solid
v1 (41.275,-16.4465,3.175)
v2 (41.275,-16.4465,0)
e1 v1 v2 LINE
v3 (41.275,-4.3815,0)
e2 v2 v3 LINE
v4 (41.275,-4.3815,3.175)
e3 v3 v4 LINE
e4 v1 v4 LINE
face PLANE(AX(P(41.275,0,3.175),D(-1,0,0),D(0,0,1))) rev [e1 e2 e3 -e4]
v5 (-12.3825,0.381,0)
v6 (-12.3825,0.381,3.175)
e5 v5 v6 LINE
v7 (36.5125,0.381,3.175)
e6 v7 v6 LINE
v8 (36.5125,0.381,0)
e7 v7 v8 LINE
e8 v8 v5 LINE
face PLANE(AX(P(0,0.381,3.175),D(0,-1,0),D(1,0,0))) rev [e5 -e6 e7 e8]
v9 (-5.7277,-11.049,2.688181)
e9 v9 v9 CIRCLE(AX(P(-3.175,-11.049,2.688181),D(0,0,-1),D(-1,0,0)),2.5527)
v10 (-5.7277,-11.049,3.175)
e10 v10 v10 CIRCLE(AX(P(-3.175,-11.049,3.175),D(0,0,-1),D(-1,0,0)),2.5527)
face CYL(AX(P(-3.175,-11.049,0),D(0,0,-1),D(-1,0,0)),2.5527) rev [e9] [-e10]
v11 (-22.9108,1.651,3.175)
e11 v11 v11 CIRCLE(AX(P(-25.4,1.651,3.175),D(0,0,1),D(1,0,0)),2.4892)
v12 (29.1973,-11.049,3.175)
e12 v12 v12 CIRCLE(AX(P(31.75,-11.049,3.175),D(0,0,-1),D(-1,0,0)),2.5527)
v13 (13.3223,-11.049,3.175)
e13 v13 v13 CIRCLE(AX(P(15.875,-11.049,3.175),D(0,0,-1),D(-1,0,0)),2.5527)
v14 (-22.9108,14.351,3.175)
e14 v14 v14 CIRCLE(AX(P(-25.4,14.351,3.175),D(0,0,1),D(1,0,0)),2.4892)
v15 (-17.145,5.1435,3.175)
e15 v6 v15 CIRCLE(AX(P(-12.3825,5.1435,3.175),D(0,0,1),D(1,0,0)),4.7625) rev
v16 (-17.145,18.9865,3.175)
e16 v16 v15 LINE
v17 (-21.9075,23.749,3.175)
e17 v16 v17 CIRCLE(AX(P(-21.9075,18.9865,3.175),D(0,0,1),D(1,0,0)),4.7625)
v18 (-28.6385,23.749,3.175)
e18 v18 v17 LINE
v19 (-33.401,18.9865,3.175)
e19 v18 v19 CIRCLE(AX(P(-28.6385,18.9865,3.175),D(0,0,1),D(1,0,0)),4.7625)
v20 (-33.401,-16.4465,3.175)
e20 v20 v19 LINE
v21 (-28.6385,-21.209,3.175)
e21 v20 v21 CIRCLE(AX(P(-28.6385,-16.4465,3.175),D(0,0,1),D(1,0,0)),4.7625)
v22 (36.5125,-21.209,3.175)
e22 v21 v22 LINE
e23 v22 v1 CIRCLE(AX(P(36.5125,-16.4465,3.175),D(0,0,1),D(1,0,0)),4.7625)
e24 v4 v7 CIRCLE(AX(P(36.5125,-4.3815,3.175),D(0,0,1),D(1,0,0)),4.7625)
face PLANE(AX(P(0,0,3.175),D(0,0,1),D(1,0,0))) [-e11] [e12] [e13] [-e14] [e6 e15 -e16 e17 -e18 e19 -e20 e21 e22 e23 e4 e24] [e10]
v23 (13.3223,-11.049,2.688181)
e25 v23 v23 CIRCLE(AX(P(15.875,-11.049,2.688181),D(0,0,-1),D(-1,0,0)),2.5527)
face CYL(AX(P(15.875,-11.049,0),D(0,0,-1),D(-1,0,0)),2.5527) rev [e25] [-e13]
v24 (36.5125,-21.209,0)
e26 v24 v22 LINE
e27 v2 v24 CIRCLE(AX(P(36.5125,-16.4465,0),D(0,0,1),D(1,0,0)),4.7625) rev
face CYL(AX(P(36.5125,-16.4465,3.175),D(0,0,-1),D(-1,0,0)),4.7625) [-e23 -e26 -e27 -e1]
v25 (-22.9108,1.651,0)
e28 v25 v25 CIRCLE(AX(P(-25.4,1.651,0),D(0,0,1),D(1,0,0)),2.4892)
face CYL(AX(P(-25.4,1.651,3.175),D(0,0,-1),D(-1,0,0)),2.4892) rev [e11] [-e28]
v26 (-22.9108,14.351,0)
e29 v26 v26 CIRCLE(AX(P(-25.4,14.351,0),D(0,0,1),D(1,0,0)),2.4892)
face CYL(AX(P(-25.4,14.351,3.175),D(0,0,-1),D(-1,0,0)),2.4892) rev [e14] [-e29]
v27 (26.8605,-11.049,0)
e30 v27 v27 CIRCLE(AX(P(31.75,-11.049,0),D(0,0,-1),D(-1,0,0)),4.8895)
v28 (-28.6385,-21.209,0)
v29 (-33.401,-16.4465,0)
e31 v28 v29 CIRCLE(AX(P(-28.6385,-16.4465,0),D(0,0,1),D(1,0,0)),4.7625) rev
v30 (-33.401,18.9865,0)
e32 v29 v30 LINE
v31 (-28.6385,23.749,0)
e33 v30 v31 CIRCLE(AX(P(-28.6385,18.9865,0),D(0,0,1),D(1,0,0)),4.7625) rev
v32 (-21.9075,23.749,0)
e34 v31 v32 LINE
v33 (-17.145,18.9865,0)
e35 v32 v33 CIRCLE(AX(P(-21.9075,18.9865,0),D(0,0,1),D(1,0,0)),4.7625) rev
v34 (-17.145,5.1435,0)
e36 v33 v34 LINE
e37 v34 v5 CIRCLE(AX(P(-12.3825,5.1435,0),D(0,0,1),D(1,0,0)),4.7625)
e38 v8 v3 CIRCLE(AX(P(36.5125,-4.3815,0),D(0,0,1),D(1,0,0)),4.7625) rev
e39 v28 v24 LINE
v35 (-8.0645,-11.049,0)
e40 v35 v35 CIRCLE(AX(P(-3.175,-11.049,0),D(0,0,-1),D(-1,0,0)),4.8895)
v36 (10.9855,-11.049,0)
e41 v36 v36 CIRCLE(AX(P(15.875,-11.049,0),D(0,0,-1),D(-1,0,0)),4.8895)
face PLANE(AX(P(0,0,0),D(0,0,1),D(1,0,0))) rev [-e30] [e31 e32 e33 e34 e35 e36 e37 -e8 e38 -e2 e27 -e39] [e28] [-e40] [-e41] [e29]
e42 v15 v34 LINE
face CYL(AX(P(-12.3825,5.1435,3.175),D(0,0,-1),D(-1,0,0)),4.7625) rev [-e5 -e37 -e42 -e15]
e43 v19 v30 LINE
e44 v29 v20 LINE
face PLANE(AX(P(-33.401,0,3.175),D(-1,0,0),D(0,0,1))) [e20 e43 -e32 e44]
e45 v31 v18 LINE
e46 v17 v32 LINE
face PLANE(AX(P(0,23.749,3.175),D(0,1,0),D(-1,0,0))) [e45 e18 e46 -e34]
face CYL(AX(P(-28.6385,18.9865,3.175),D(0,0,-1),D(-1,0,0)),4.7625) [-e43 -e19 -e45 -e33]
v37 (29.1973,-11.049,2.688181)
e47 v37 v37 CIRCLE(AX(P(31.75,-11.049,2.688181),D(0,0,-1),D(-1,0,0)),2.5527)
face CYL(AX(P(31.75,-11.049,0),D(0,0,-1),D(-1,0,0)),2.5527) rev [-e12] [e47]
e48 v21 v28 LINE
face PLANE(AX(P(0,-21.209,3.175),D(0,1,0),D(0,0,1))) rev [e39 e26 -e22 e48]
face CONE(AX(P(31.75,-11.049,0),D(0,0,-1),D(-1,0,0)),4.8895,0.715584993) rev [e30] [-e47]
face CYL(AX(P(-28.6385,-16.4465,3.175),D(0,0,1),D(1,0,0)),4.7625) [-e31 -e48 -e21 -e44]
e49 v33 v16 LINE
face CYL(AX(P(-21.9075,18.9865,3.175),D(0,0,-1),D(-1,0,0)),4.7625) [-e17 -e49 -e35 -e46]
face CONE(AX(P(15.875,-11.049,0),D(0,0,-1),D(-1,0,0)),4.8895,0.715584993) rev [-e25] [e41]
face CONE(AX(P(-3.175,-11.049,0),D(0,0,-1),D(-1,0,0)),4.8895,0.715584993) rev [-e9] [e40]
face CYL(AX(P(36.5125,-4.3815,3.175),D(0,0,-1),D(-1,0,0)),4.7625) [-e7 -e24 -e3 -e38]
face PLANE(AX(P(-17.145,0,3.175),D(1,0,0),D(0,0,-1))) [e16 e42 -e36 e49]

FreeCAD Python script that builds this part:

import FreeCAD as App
import Part
import Sketcher
from FreeCAD import Vector
Q = App.Units.Quantity


def edges_at(feature, points):
    """Names of the edges that pass closest to the given points."""
    edges = feature.Shape.Edges
    near = lambda p: min(range(len(edges)), key=lambda i: edges[i].distToShape(Part.Vertex(*p))[0])
    return sorted({f"Edge{near(p) + 1}" for p in points})


def add_polygon(sketch, points):
    """Adds a closed chain of lines whose ends are joined by coincident constraints."""
    first, n = sketch.GeometryCount, len(points)
    for a, b in zip(points, points[1:] + points[:1]):
        sketch.addGeometry(Part.LineSegment(App.Vector(*a, 0), App.Vector(*b, 0)), False)
    for i in range(n):
        sketch.addConstraint(Sketcher.Constraint("Coincident", first + i, 2, first + (i + 1) % n, 1))

doc = App.newDocument("Part")
params = doc.addObject("Spreadsheet::Sheet", "Params")
for row, (alias, value) in enumerate([
    ("sketch1_diameter", "0.196 in"),
    ("sketch1_width", "2.3 in"),
    ("sketch1_width2", "2.94 in"),
    ("sketch1_height", "1.77 in"),
    ("sketch1_height2", "0.85 in"),
    ("pad1_length", "0.125 in"),
    ("fillet_radius", "0.1875 in"),
    ("sketch2_height", "0.125 in"),
    ("groove_angle", "360 deg"),
    ("linearpattern_pitch", "0.625 in"),
    ("linearpattern2_pitch", "1.375 in"),
], start=1):
    params.set(f"A{row}", alias)
    params.set(f"B{row}", "=" + value)
    params.setAlias(f"B{row}", alias)

body = doc.addObject("PartDesign::Body", "Body")

# Sketch on XY plane
sketch1 = doc.addObject("Sketcher::SketchObject", "Sketch")
body.addObject(sketch1)
sketch1.AttachmentSupport = (doc.XY_Plane, [""])
sketch1.MapMode = "FlatFace"
add_polygon(sketch1, [(-33.4, 23.7), (-33.4, -21.2), (41.3, -21.2), (41.3, 0.4), (-17.1, 0.4), (-17.1, 23.7)])  # lines 0-5
sketch1.addGeometry(Part.Circle(Vector(-25.4, 1.7, 0), Vector(0, 0, 1), 2.5), False)  # 6
sketch1.addGeometry(Part.Circle(Vector(-25.4, 14.4, 0), Vector(0, 0, 1), 2.5), False)  # 7
sketch1.addConstraint([
    Sketcher.Constraint("Vertical", 0),
    Sketcher.Constraint("Horizontal", 1),
    Sketcher.Constraint("Vertical", 2),
    Sketcher.Constraint("Horizontal", 3),
    Sketcher.Constraint("Vertical", 4),
    Sketcher.Constraint("Horizontal", 5),
    Sketcher.Constraint("Equal", 6, 7),
    Sketcher.Constraint("Vertical", 6, 3, 7, 3),
    Sketcher.Constraint("Diameter", 6, Q("0.196 in")),
    Sketcher.Constraint("DistanceX", 3, 2, 3, 1, Q("2.3 in")),
    Sketcher.Constraint("DistanceX", 6, 3, -1, 1, Q("1 in")),
    Sketcher.Constraint("DistanceX", 1, 1, 1, 2, Q("2.94 in")),
    Sketcher.Constraint("DistanceY", 0, 2, 0, 1, Q("1.77 in")),
    Sketcher.Constraint("DistanceY", 2, 1, 2, 2, Q("0.85 in")),
    Sketcher.Constraint("DistanceY", 6, 3, 7, 3, Q("0.5 in")),
    Sketcher.Constraint("DistanceY", 0, 2, 6, 3, Q("0.9 in")),
    Sketcher.Constraint("DistanceY", -1, 1, 6, 3, Q("0.065 in")),
    Sketcher.Constraint("DistanceX", 0, 2, -1, 1, Q("1.315 in")),
])
sketch1.setExpression("Constraints[14]", "Params.sketch1_diameter")
sketch1.setExpression("Constraints[15]", "Params.sketch1_width")
sketch1.setExpression("Constraints[17]", "Params.sketch1_width2")
sketch1.setExpression("Constraints[18]", "Params.sketch1_height")
sketch1.setExpression("Constraints[19]", "Params.sketch1_height2")
pad1 = doc.addObject("PartDesign::Pad", "Pad")
body.addObject(pad1)
pad1.Profile = sketch1
pad1.setExpression("Length", "Params.pad1_length")
doc.recompute()

fillet = doc.addObject("PartDesign::Fillet", "Fillet")
body.addObject(fillet)
fillet.Base = (pad1, edges_at(pad1, [
    (-33.401, 23.749, 1.587),
    (-17.145, 23.749, 1.587),
    (-17.145, 0.381, 1.587),
    (41.275, 0.381, 1.587),
    (41.275, -21.209, 1.587),
    (-33.401, -21.209, 1.587),
]))
fillet.setExpression("Radius", "Params.fillet_radius")

# Sketch on YZ plane
sketch2 = doc.addObject("Sketcher::SketchObject", "Sketch001")
body.addObject(sketch2)
sketch2.AttachmentSupport = (doc.YZ_Plane, [""])
sketch2.MapMode = "FlatFace"
sketch2.AttachmentOffset = App.Placement(Vector(0, 0, 1.25 * 25.4), App.Rotation())
add_polygon(sketch2, [(-11.05, 3.17), (-11.05, 0), (-6.16, 0), (-8.5, 2.69), (-8.5, 3.17)])  # lines 0-4
sketch2.addGeometry(Part.LineSegment(Vector(-11.05, 0, 0), Vector(-11.05, 3.17, 0)), True)  # axis
sketch2.addConstraint([
    Sketcher.Constraint("Vertical", 0),
    Sketcher.Constraint("Horizontal", 1),
    Sketcher.Constraint("Vertical", 3),
    Sketcher.Constraint("Horizontal", 4),
    Sketcher.Constraint("Vertical", 5),
    Sketcher.Constraint("Coincident", 5, 1, 0, 2),
    Sketcher.Constraint("PointOnObject", 0, 2, -1),
    Sketcher.Constraint("Horizontal", 3, 2, 5, 2),
    Sketcher.Constraint("Angle", 2, Q("131 deg")),
    Sketcher.Constraint("DistanceY", 0, 2, 0, 1, Q("0.125 in")),
    Sketcher.Constraint("DistanceX", 1, 1, 1, 2, Q("0.1925 in")),
    Sketcher.Constraint("DistanceX", 4, 2, 4, 1, Q("0.1005 in")),
    Sketcher.Constraint("DistanceX", 0, 2, -1, 1, Q("0.435 in")),
])
sketch2.setExpression("Constraints[14]", "Params.sketch2_height")
groove = doc.addObject("PartDesign::Groove", "Groove")
body.addObject(groove)
groove.Profile = sketch2
groove.ReferenceAxis = (sketch2, ["Axis0"])
groove.setExpression("Angle", "Params.groove_angle")
doc.recompute()

linearpattern = doc.addObject("PartDesign::LinearPattern", "LinearPattern")
body.addObject(linearpattern)
linearpattern.Originals = [groove]
linearpattern.Direction = (doc.X_Axis, [""])
linearpattern.Mode = "offset"
linearpattern.setExpression("Offset", "Params.linearpattern_pitch")
linearpattern.Occurrences = 2
linearpattern.Reversed = True
body.Tip = linearpattern
doc.recompute()

linearpattern2 = doc.addObject("PartDesign::LinearPattern", "LinearPattern001")
body.addObject(linearpattern2)
linearpattern2.Originals = [groove]
linearpattern2.Direction = (doc.X_Axis, [""])
linearpattern2.Mode = "offset"
linearpattern2.setExpression("Offset", "Params.linearpattern2_pitch")
linearpattern2.Occurrences = 2
linearpattern2.Reversed = True
body.Tip = linearpattern2

doc.recompute()
